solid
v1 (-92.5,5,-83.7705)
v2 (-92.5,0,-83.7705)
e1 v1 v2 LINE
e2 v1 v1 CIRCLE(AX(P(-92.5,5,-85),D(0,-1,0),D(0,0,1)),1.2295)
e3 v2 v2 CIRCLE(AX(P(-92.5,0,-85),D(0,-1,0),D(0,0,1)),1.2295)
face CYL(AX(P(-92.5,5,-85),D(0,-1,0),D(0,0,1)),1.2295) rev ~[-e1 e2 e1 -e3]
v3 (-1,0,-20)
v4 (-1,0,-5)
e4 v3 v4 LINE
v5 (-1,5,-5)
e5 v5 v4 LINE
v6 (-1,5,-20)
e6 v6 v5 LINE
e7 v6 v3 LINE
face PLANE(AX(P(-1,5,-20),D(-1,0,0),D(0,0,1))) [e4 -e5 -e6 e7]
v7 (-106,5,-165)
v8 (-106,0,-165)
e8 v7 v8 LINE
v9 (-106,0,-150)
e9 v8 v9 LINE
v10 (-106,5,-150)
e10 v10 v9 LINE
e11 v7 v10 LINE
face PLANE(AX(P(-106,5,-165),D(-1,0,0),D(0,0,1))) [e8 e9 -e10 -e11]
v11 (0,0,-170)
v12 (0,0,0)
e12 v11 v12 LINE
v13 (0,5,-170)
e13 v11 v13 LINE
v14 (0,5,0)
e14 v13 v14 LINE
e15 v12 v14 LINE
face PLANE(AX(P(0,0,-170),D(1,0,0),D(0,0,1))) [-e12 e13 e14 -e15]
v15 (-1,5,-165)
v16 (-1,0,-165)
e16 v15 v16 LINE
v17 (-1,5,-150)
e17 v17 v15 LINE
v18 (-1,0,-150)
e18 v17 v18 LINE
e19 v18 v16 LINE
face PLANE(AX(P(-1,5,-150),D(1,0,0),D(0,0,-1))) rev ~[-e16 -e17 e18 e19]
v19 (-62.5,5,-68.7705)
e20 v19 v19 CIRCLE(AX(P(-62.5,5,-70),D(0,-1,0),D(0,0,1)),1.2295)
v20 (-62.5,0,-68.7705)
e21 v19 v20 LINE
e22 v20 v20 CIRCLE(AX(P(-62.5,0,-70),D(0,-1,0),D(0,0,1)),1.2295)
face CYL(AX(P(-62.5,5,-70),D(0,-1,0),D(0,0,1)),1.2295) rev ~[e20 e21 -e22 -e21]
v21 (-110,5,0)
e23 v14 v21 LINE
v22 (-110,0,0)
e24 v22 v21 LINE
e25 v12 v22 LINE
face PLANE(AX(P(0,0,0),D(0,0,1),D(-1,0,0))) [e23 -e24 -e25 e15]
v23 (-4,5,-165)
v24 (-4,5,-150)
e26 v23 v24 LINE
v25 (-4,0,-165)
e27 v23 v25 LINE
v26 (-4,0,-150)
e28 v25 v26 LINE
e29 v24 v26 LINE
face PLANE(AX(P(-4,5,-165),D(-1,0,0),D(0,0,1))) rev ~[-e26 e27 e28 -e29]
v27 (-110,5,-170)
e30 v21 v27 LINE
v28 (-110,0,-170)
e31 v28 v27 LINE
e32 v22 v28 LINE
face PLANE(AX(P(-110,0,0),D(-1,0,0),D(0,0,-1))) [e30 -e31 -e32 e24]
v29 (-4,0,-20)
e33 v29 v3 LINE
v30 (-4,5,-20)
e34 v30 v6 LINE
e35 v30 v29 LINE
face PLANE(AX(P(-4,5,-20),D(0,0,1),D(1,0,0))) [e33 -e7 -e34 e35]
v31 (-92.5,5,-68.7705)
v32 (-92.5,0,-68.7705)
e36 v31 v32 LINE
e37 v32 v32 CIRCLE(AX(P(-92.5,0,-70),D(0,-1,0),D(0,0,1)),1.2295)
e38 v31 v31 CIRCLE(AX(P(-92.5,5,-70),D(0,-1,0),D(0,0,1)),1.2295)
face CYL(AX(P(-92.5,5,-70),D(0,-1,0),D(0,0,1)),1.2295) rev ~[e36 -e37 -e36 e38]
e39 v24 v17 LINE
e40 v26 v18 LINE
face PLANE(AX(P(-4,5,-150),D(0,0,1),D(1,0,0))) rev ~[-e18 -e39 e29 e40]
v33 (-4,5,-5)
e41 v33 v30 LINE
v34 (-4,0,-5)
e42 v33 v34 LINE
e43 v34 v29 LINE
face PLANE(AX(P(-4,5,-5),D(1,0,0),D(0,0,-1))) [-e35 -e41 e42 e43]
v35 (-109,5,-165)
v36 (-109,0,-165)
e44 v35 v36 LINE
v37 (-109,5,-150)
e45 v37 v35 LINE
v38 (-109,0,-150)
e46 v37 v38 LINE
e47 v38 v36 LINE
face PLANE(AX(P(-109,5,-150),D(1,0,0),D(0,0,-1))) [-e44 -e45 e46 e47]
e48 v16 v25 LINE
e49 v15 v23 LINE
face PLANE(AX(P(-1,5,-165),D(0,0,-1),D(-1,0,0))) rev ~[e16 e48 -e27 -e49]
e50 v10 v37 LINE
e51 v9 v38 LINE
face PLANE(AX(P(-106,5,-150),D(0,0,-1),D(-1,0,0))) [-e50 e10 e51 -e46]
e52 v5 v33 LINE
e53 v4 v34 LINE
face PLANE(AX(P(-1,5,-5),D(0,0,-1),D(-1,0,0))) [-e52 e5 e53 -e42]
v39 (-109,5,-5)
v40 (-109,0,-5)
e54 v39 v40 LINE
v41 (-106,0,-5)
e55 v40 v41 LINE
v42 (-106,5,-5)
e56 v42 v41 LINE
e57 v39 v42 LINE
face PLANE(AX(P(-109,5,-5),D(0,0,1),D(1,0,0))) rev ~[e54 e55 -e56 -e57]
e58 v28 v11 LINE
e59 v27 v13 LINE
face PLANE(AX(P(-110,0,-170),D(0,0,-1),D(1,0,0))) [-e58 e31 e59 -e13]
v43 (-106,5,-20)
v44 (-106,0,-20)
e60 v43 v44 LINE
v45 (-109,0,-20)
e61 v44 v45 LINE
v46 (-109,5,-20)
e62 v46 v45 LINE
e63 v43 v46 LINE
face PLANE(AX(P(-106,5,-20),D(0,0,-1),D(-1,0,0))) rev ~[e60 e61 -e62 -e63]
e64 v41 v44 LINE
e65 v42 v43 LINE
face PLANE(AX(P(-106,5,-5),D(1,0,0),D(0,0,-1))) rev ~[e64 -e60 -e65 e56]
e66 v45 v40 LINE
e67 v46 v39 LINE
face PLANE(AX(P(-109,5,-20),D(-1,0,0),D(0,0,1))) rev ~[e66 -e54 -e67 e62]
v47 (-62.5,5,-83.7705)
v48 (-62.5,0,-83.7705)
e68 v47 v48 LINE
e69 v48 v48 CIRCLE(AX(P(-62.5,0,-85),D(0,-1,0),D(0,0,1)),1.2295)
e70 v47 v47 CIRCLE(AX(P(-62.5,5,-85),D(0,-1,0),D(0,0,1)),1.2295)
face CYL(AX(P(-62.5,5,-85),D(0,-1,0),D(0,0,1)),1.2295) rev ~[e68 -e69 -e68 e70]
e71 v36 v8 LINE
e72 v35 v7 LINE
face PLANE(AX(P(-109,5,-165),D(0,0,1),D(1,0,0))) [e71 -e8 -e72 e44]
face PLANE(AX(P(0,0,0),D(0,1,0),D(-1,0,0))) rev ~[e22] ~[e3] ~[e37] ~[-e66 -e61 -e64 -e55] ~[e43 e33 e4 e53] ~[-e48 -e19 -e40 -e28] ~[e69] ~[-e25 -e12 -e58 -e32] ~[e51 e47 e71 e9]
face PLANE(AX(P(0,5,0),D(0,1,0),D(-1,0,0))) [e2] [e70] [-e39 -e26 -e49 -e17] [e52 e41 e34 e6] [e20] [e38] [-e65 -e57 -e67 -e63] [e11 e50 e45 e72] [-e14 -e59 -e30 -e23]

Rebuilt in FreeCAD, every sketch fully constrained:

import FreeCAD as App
import Part
import Sketcher

V = App.Vector
Q = App.Units.Quantity


def add_polygon(sketch, points):
    """Adds a closed chain of lines whose ends are joined by coincident constraints."""
    first, n = sketch.GeometryCount, len(points)
    for a, b in zip(points, points[1:] + points[:1]):
        sketch.addGeometry(Part.LineSegment(App.Vector(*a, 0), App.Vector(*b, 0)), False)
    for i in range(n):
        sketch.addConstraint(Sketcher.Constraint("Coincident", first + i, 2, first + (i + 1) % n, 1))

doc = App.newDocument("Part")
body = doc.addObject("PartDesign::Body", "Body")

sketch1 = doc.addObject("Sketcher::SketchObject", "Sketch")
body.addObject(sketch1)
sketch1.AttachmentSupport = (doc.XZ_Plane, [""])
sketch1.MapMode = "FlatFace"
add_polygon(sketch1, [(-110, 0), (0, 0), (0, -170), (-110, -170)])
sketch1.addConstraint(Sketcher.Constraint("Horizontal", 0))
sketch1.addConstraint(Sketcher.Constraint("Vertical", 1))
sketch1.addConstraint(Sketcher.Constraint("Horizontal", 2))
sketch1.addConstraint(Sketcher.Constraint("Vertical", 3))
sketch1.addConstraint(Sketcher.Constraint("Coincident", 0, 2, -1, 1))
sketch1.addConstraint(Sketcher.Constraint("DistanceX", 0, 1, 0, 2, Q("110 mm")))
sketch1.addConstraint(Sketcher.Constraint("DistanceY", 1, 2, 1, 1, Q("170 mm")))
pad1 = doc.addObject("PartDesign::Pad", "Pad")
body.addObject(pad1)
pad1.Profile = sketch1
pad1.Length = 5
pad1.Reversed = True

sketch2 = doc.addObject("Sketcher::SketchObject", "Sketch001")
body.addObject(sketch2)
sketch2.AttachmentSupport = (doc.XZ_Plane, [""])
sketch2.MapMode = "FlatFace"
sketch2.AttachmentOffset = App.Placement(V(0, 0, -5), App.Rotation())
add_polygon(sketch2, [(-109, -20), (-109, -5), (-106, -5), (-106, -20)])
add_polygon(sketch2, [(-106, -165), (-109, -165), (-109, -150), (-106, -150)])
add_polygon(sketch2, [(-4, -5), (-1, -5), (-1, -20), (-4, -20)])
add_polygon(sketch2, [(-1, -165), (-4, -165), (-4, -150), (-1, -150)])
sketch2.addConstraint(Sketcher.Constraint("Vertical", 0))
sketch2.addConstraint(Sketcher.Constraint("Horizontal", 1))
sketch2.addConstraint(Sketcher.Constraint("Vertical", 2))
sketch2.addConstraint(Sketcher.Constraint("Horizontal", 3))
sketch2.addConstraint(Sketcher.Constraint("Horizontal", 4))
sketch2.addConstraint(Sketcher.Constraint("Vertical", 5))
sketch2.addConstraint(Sketcher.Constraint("Horizontal", 6))
sketch2.addConstraint(Sketcher.Constraint("Vertical", 7))
sketch2.addConstraint(Sketcher.Constraint("Horizontal", 8))
sketch2.addConstraint(Sketcher.Constraint("Vertical", 9))
sketch2.addConstraint(Sketcher.Constraint("Horizontal", 10))
sketch2.addConstraint(Sketcher.Constraint("Vertical", 11))
sketch2.addConstraint(Sketcher.Constraint("Horizontal", 12))
sketch2.addConstraint(Sketcher.Constraint("Vertical", 13))
sketch2.addConstraint(Sketcher.Constraint("Horizontal", 14))
sketch2.addConstraint(Sketcher.Constraint("Vertical", 15))
sketch2.addConstraint(Sketcher.Constraint("Horizontal", 1, 2, 8, 2))
sketch2.addConstraint(Sketcher.Constraint("Horizontal", 3, 2, 9, 2))
sketch2.addConstraint(Sketcher.Constraint("Horizontal", 7, 2, 12, 2))
sketch2.addConstraint(Sketcher.Constraint("Horizontal", 6, 2, 13, 2))
sketch2.addConstraint(Sketcher.Constraint("Vertical", 3, 2, 4, 2))
sketch2.addConstraint(Sketcher.Constraint("Vertical", 2, 2, 6, 2))
sketch2.addConstraint(Sketcher.Constraint("Vertical", 11, 2, 12, 2))
sketch2.addConstraint(Sketcher.Constraint("Vertical", 9, 2, 14, 2))
sketch2.addConstraint(Sketcher.Constraint("Equal", 6, 8))
sketch2.addConstraint(Sketcher.Constraint("Equal", 2, 5))
sketch2.addConstraint(Sketcher.Constraint("DistanceX", 1, 1, 1, 2, Q("3 mm")))
sketch2.addConstraint(Sketcher.Constraint("DistanceY", 0, 1, 0, 2, Q("15 mm")))
sketch2.addConstraint(Sketcher.Constraint("DistanceY", 0, 2, -1, 1, Q("5 mm")))
sketch2.addConstraint(Sketcher.Constraint("DistanceX", 8, 2, -1, 1, Q("1 mm")))
sketch2.addConstraint(Sketcher.Constraint("DistanceX", 0, 2, -1, 1, Q("109 mm")))
sketch2.addConstraint(Sketcher.Constraint("DistanceY", 4, 2, -1, 1, Q("165 mm")))
pocket1 = doc.addObject("PartDesign::Pocket", "Pocket")
body.addObject(pocket1)
pocket1.Profile = sketch2
pocket1.Length = 5
pocket1.Reversed = True

sketch3 = doc.addObject("Sketcher::SketchObject", "Sketch002")
body.addObject(sketch3)
sketch3.AttachmentSupport = (doc.XZ_Plane, [""])
sketch3.MapMode = "FlatFace"
sketch3.AttachmentOffset = App.Placement(V(0, 0, -5), App.Rotation())
sketch3.addGeometry(Part.Circle(V(-92.5, -70, 0), V(0, 0, 1), 1.2), False)
sketch3.addGeometry(Part.Circle(V(-92.5, -85, 0), V(0, 0, 1), 1.2), False)
sketch3.addGeometry(Part.Circle(V(-62.5, -85, 0), V(0, 0, 1), 1.2), False)
sketch3.addGeometry(Part.Circle(V(-62.5, -70, 0), V(0, 0, 1), 1.2), False)
sketch3.addConstraint(Sketcher.Constraint("Equal", 0, 1))
sketch3.addConstraint(Sketcher.Constraint("Equal", 1, 2))
sketch3.addConstraint(Sketcher.Constraint("Equal", 2, 3))
sketch3.addConstraint(Sketcher.Constraint("Horizontal", 1, 3, 2, 3))
sketch3.addConstraint(Sketcher.Constraint("Horizontal", 0, 3, 3, 3))
sketch3.addConstraint(Sketcher.Constraint("Vertical", 0, 3, 1, 3))
sketch3.addConstraint(Sketcher.Constraint("Vertical", 2, 3, 3, 3))
sketch3.addConstraint(Sketcher.Constraint("Diameter", 0, Q("2.459 mm")))
sketch3.addConstraint(Sketcher.Constraint("DistanceY", 0, 3, -1, 1, Q("70 mm")))
sketch3.addConstraint(Sketcher.Constraint("DistanceY", 1, 3, -1, 1, Q("85 mm")))
sketch3.addConstraint(Sketcher.Constraint("DistanceX", 1, 3, 2, 3, Q("30 mm")))
sketch3.addConstraint(Sketcher.Constraint("DistanceX", 0, 3, -1, 1, Q("92.5 mm")))
doc.recompute()
hole = doc.addObject("PartDesign::Hole", "Hole")
body.addObject(hole)
hole.Profile = sketch3
hole.ThreadType = "None"
hole.Diameter = 2.459
hole.DepthType = "ThroughAll"
hole.Reversed = True

doc.recompute()
